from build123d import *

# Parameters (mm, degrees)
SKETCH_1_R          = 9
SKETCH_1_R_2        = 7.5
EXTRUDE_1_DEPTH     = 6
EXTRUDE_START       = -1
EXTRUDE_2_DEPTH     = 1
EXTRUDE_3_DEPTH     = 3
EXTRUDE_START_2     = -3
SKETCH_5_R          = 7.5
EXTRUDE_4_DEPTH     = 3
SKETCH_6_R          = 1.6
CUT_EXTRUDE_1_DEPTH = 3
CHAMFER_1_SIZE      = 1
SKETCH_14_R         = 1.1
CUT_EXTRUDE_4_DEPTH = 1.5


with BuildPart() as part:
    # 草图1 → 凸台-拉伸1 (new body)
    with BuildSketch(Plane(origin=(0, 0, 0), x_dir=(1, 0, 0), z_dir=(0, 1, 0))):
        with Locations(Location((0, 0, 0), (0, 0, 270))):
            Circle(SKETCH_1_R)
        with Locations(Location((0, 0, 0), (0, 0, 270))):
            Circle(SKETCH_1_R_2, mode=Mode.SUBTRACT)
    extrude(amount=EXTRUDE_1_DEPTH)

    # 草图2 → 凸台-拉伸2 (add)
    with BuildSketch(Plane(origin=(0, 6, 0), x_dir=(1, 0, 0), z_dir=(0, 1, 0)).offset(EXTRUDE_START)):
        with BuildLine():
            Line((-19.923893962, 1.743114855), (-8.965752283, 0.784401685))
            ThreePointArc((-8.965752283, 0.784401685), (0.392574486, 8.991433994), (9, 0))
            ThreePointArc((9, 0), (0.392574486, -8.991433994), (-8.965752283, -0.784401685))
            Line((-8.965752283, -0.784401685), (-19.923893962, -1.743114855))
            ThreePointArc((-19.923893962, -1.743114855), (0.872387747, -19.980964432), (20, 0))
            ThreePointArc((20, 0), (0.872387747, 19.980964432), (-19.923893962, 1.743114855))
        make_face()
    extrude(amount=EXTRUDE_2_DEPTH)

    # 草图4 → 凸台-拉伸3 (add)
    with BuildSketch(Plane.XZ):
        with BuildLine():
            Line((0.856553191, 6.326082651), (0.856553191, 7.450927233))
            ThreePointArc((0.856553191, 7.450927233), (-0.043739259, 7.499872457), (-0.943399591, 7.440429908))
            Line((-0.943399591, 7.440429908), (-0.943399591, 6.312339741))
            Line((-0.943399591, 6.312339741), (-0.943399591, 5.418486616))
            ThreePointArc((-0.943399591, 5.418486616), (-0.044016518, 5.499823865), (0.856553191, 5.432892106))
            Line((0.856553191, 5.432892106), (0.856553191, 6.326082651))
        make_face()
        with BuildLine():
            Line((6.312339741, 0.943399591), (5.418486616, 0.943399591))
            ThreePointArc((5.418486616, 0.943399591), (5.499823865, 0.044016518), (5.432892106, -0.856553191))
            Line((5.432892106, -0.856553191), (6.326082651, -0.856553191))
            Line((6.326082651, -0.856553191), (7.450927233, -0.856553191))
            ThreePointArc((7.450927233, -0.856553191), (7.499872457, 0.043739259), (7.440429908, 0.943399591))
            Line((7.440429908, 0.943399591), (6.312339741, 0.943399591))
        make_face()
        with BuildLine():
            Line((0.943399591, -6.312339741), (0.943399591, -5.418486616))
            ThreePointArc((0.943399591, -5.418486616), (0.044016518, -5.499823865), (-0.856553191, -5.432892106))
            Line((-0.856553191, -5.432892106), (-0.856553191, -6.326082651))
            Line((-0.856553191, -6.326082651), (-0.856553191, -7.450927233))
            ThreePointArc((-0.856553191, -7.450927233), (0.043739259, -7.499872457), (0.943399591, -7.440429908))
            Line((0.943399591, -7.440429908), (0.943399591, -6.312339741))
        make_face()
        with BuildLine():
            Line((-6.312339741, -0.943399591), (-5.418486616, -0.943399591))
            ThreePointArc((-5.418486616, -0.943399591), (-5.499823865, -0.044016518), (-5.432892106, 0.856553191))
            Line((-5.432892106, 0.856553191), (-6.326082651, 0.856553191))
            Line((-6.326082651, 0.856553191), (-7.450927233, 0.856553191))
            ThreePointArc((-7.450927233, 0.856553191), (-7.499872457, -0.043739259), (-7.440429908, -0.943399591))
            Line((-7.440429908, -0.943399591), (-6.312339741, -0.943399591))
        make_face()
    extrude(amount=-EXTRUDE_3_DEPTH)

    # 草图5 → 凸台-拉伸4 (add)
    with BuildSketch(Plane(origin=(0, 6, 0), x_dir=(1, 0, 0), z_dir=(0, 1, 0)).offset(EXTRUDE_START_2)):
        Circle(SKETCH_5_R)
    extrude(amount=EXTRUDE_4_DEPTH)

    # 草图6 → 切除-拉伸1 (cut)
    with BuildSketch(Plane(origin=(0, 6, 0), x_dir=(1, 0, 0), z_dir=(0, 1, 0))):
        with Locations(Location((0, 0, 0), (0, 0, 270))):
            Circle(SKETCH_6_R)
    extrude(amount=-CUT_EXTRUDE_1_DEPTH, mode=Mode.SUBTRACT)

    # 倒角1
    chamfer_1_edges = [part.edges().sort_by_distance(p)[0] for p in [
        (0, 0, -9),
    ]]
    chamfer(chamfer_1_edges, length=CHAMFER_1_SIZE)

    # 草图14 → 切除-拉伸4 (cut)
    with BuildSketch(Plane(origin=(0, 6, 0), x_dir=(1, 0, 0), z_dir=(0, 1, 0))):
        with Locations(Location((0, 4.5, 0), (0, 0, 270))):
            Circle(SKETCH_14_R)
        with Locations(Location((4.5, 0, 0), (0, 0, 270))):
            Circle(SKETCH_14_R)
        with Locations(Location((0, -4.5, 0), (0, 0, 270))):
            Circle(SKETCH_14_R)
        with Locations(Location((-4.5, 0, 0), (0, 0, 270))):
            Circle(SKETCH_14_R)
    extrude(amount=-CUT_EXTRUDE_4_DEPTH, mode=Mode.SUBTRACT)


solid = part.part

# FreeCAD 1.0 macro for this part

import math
import FreeCAD as App
import Part
import Sketcher
from FreeCAD import Vector
Q = App.Units.Quantity


def edges_at(feature, points):
    """Names of the edges that pass closest to the given points."""
    edges = feature.Shape.Edges
    near = lambda p: min(range(len(edges)), key=lambda i: edges[i].distToShape(Part.Vertex(*p))[0])
    return sorted({f"Edge{near(p) + 1}" for p in points})

doc = App.newDocument("Part")
body = doc.addObject("PartDesign::Body", "Body")

# Sketch on XZ plane
sketch1 = doc.addObject("Sketcher::SketchObject", "Sketch")
body.addObject(sketch1)
sketch1.AttachmentSupport = (doc.XZ_Plane, [""])
sketch1.MapMode = "FlatFace"
sketch1.addGeometry(Part.Circle(Vector(0, 0, 0), Vector(0, 0, 1), 9), False)
sketch1.addGeometry(Part.Circle(Vector(0, 0, 0), Vector(0, 0, 1), 7.5), False)
sketch1.addConstraint(Sketcher.Constraint("Coincident", 0, 3, -1, 1))
sketch1.addConstraint(Sketcher.Constraint("Coincident", 1, 3, -1, 1))
sketch1.addConstraint(Sketcher.Constraint("Diameter", 0, 18.0))
sketch1.addConstraint(Sketcher.Constraint("Diameter", 1, 15.0))
pad1 = doc.addObject("PartDesign::Pad", "Pad")
body.addObject(pad1)
pad1.Profile = sketch1
pad1.Length = 6
pad1.Reversed = True

# Sketch on XZ plane
sketch2 = doc.addObject("Sketcher::SketchObject", "Sketch001")
body.addObject(sketch2)
sketch2.AttachmentSupport = (doc.XZ_Plane, [""])
sketch2.MapMode = "FlatFace"
sketch2.AttachmentOffset = App.Placement(Vector(0, 0, -5), App.Rotation())
sketch2.addGeometry(Part.LineSegment(Vector(-19.923894, -1.743115, 0), Vector(-8.965752, -0.784402, 0)), False)
sketch2.addGeometry(Part.ArcOfCircle(Part.Circle(Vector(0, 0, 0), Vector(0, 0, 1), 9), math.radians(-175), math.radians(0)), False)
sketch2.addGeometry(Part.ArcOfCircle(Part.Circle(Vector(0, 0, 0), Vector(0, 0, 1), 9), math.radians(0), math.radians(175)), False)
sketch2.addGeometry(Part.LineSegment(Vector(-8.965752, 0.784402, 0), Vector(-19.923894, 1.743115, 0)), False)
sketch2.addGeometry(Part.ArcOfCircle(Part.Circle(Vector(0, 0, 0), Vector(0, 0, 1), 20), math.radians(0), math.radians(175)), False)
sketch2.addGeometry(Part.ArcOfCircle(Part.Circle(Vector(0, 0, 0), Vector(0, 0, 1), 20), math.radians(-175), math.radians(0)), False)
sketch2.addConstraint(Sketcher.Constraint("Coincident", 0, 2, 1, 1))
sketch2.addConstraint(Sketcher.Constraint("Tangent", 1, 2, 2, 1))
sketch2.addConstraint(Sketcher.Constraint("Coincident", 2, 2, 3, 1))
sketch2.addConstraint(Sketcher.Constraint("Coincident", 3, 2, 4, 2))
sketch2.addConstraint(Sketcher.Constraint("Tangent", 4, 1, 5, 2))
sketch2.addConstraint(Sketcher.Constraint("Coincident", 5, 1, 0, 1))
sketch2.addConstraint(Sketcher.Constraint("Coincident", 1, 3, -1, 1))
sketch2.addConstraint(Sketcher.Constraint("Coincident", 4, 3, -1, 1))
sketch2.addConstraint(Sketcher.Constraint("Equal", 1, 2))
sketch2.addConstraint(Sketcher.Constraint("Equal", 4, 5))
sketch2.addConstraint(Sketcher.Constraint("PointOnObject", 1, 2, -1))
sketch2.addConstraint(Sketcher.Constraint("PointOnObject", 4, 1, -1))
sketch2.addConstraint(Sketcher.Constraint("Vertical", 0, 2, 2, 2))
sketch2.addConstraint(Sketcher.Constraint("Vertical", 3, 2, 5, 1))
sketch2.addConstraint(Sketcher.Constraint("Radius", 1, 9.0))
sketch2.addConstraint(Sketcher.Constraint("Radius", 4, 20.0))
sketch2.addConstraint(Sketcher.Constraint("Angle", 0, Q("5 deg")))
sketch2.addConstraint(Sketcher.Constraint("DistanceY", 0, 2, -1, 1, 0.784402))
pad2 = doc.addObject("PartDesign::Pad", "Pad001")
body.addObject(pad2)
pad2.Profile = sketch2
pad2.Length = 1
pad2.Reversed = True

# Sketch on XZ plane
sketch3 = doc.addObject("Sketcher::SketchObject", "Sketch002")
body.addObject(sketch3)
sketch3.AttachmentSupport = (doc.XZ_Plane, [""])
sketch3.MapMode = "FlatFace"
sketch3.addGeometry(Part.ArcOfCircle(Part.Circle(Vector(0, 0, 0), Vector(0, 0, 1), 7.5), math.radians(83.442107), math.radians(97.226184)), False)
sketch3.addGeometry(Part.LineSegment(Vector(-0.9434, 7.44043, 0), Vector(-0.9434, 5.418487, 0)), False)
sketch3.addGeometry(Part.ArcOfCircle(Part.Circle(Vector(0, 0, 0), Vector(0, 0, 1), 5.5), math.radians(81.040461), math.radians(99.876625)), False)
sketch3.addGeometry(Part.LineSegment(Vector(0.856553, 5.432892, 0), Vector(0.856553, 7.450927, 0)), False)
sketch3.addGeometry(Part.ArcOfCircle(Part.Circle(Vector(0, 0, 0), Vector(0, 0, 1), 5.5), math.radians(-8.959539), math.radians(9.876625)), False)
sketch3.addGeometry(Part.LineSegment(Vector(5.432892, -0.856553, 0), Vector(7.450927, -0.856553, 0)), False)
sketch3.addGeometry(Part.ArcOfCircle(Part.Circle(Vector(0, 0, 0), Vector(0, 0, 1), 7.5), math.radians(-6.557893), math.radians(7.226184)), False)
sketch3.addGeometry(Part.LineSegment(Vector(7.44043, 0.9434, 0), Vector(5.418487, 0.9434, 0)), False)
sketch3.addGeometry(Part.ArcOfCircle(Part.Circle(Vector(0, 0, 0), Vector(0, 0, 1), 5.5), math.radians(-98.959539), math.radians(-80.123375)), False)
sketch3.addGeometry(Part.LineSegment(Vector(-0.856553, -5.432892, 0), Vector(-0.856553, -7.450927, 0)), False)
sketch3.addGeometry(Part.ArcOfCircle(Part.Circle(Vector(0, 0, 0), Vector(0, 0, 1), 7.5), math.radians(-96.557893), math.radians(-82.773816)), False)
sketch3.addGeometry(Part.LineSegment(Vector(0.9434, -7.44043, 0), Vector(0.9434, -5.418487, 0)), False)
sketch3.addGeometry(Part.ArcOfCircle(Part.Circle(Vector(0, 0, 0), Vector(0, 0, 1), 5.5), math.radians(171.040461), math.radians(189.876625)), False)
sketch3.addGeometry(Part.LineSegment(Vector(-5.432892, 0.856553, 0), Vector(-7.450927, 0.856553, 0)), False)
sketch3.addGeometry(Part.ArcOfCircle(Part.Circle(Vector(0, 0, 0), Vector(0, 0, 1), 7.5), math.radians(173.442107), math.radians(187.226184)), False)
sketch3.addGeometry(Part.LineSegment(Vector(-7.44043, -0.9434, 0), Vector(-5.418487, -0.9434, 0)), False)
sketch3.addConstraint(Sketcher.Constraint("Coincident", 0, 2, 1, 1))
sketch3.addConstraint(Sketcher.Constraint("Coincident", 1, 2, 2, 2))
sketch3.addConstraint(Sketcher.Constraint("Coincident", 2, 1, 3, 1))
sketch3.addConstraint(Sketcher.Constraint("Coincident", 3, 2, 0, 1))
sketch3.addConstraint(Sketcher.Constraint("Coincident", 4, 1, 5, 1))
sketch3.addConstraint(Sketcher.Constraint("Coincident", 5, 2, 6, 1))
sketch3.addConstraint(Sketcher.Constraint("Coincident", 6, 2, 7, 1))
sketch3.addConstraint(Sketcher.Constraint("Coincident", 7, 2, 4, 2))
sketch3.addConstraint(Sketcher.Constraint("Coincident", 8, 1, 9, 1))
sketch3.addConstraint(Sketcher.Constraint("Coincident", 9, 2, 10, 1))
sketch3.addConstraint(Sketcher.Constraint("Coincident", 10, 2, 11, 1))
sketch3.addConstraint(Sketcher.Constraint("Coincident", 11, 2, 8, 2))
sketch3.addConstraint(Sketcher.Constraint("Coincident", 12, 1, 13, 1))
sketch3.addConstraint(Sketcher.Constraint("Coincident", 13, 2, 14, 1))
sketch3.addConstraint(Sketcher.Constraint("Coincident", 14, 2, 15, 1))
sketch3.addConstraint(Sketcher.Constraint("Coincident", 15, 2, 12, 2))
sketch3.addConstraint(Sketcher.Constraint("Vertical", 1))
sketch3.addConstraint(Sketcher.Constraint("Vertical", 3))
sketch3.addConstraint(Sketcher.Constraint("Horizontal", 5))
sketch3.addConstraint(Sketcher.Constraint("Horizontal", 7))
sketch3.addConstraint(Sketcher.Constraint("Vertical", 9))
sketch3.addConstraint(Sketcher.Constraint("Vertical", 11))
sketch3.addConstraint(Sketcher.Constraint("Horizontal", 13))
sketch3.addConstraint(Sketcher.Constraint("Horizontal", 15))
sketch3.addConstraint(Sketcher.Constraint("Coincident", 0, 3, -1, 1))
sketch3.addConstraint(Sketcher.Constraint("Coincident", 2, 3, -1, 1))
sketch3.addConstraint(Sketcher.Constraint("Coincident", 4, 3, -1, 1))
sketch3.addConstraint(Sketcher.Constraint("Coincident", 6, 3, -1, 1))
sketch3.addConstraint(Sketcher.Constraint("Coincident", 8, 3, -1, 1))
sketch3.addConstraint(Sketcher.Constraint("Coincident", 10, 3, -1, 1))
sketch3.addConstraint(Sketcher.Constraint("Coincident", 12, 3, -1, 1))
sketch3.addConstraint(Sketcher.Constraint("Coincident", 14, 3, -1, 1))
sketch3.addConstraint(Sketcher.Constraint("Equal", 2, 4))
sketch3.addConstraint(Sketcher.Constraint("Equal", 0, 6))
sketch3.addConstraint(Sketcher.Constraint("Equal", 4, 8))
sketch3.addConstraint(Sketcher.Constraint("Equal", 6, 10))
sketch3.addConstraint(Sketcher.Constraint("Equal", 8, 12))
sketch3.addConstraint(Sketcher.Constraint("Equal", 10, 14))
sketch3.addConstraint(Sketcher.Constraint("Equal", 5, 13))
sketch3.addConstraint(Sketcher.Constraint("Equal", 7, 15))
sketch3.addConstraint(Sketcher.Constraint("Equal", 15, 1))
sketch3.addConstraint(Sketcher.Constraint("Equal", 13, 3))
sketch3.addConstraint(Sketcher.Constraint("Equal", 3, 9))
sketch3.addConstraint(Sketcher.Constraint("Equal", 1, 11))
sketch3.addConstraint(Sketcher.Constraint("Radius", 0, 7.5))
sketch3.addConstraint(Sketcher.Constraint("Radius", 2, 5.5))
sketch3.addConstraint(Sketcher.Constraint("DistanceX", 0, 2, -1, 1, 0.9434))
sketch3.addConstraint(Sketcher.Constraint("DistanceX", 5, 1, 5, 2, 2.018035))
pad3 = doc.addObject("PartDesign::Pad", "Pad002")
body.addObject(pad3)
pad3.Profile = sketch3
pad3.Length = 3
pad3.Reversed = True

# Sketch on XZ plane
sketch4 = doc.addObject("Sketcher::SketchObject", "Sketch003")
body.addObject(sketch4)
sketch4.AttachmentSupport = (doc.XZ_Plane, [""])
sketch4.MapMode = "FlatFace"
sketch4.AttachmentOffset = App.Placement(Vector(0, 0, -3), App.Rotation())
sketch4.addGeometry(Part.Circle(Vector(0, 0, 0), Vector(0, 0, 1), 7.5), False)
sketch4.addConstraint(Sketcher.Constraint("Coincident", 0, 3, -1, 1))
sketch4.addConstraint(Sketcher.Constraint("Diameter", 0, 15.0))
pad4 = doc.addObject("PartDesign::Pad", "Pad003")
body.addObject(pad4)
pad4.Profile = sketch4
pad4.Length = 3
pad4.Reversed = True

# Sketch on XZ plane
sketch5 = doc.addObject("Sketcher::SketchObject", "Sketch004")
body.addObject(sketch5)
sketch5.AttachmentSupport = (doc.XZ_Plane, [""])
sketch5.MapMode = "FlatFace"
sketch5.AttachmentOffset = App.Placement(Vector(0, 0, -6), App.Rotation())
sketch5.addGeometry(Part.Circle(Vector(0, 0, 0), Vector(0, 0, 1), 1.6), False)
sketch5.addConstraint(Sketcher.Constraint("Coincident", 0, 3, -1, 1))
sketch5.addConstraint(Sketcher.Constraint("Diameter", 0, 3.2))
pocket1 = doc.addObject("PartDesign::Pocket", "Pocket")
body.addObject(pocket1)
pocket1.Profile = sketch5
pocket1.Length = 3
pocket1.Reversed = True
doc.recompute()

chamfer = doc.addObject("PartDesign::Chamfer", "Chamfer")
body.addObject(chamfer)
chamfer.Base = (pocket1, edges_at(pocket1, [(0, 0, -9)]))
chamfer.Size = 1

# Sketch on XZ plane
sketch6 = doc.addObject("Sketcher::SketchObject", "Sketch005")
body.addObject(sketch6)
sketch6.AttachmentSupport = (doc.XZ_Plane, [""])
sketch6.MapMode = "FlatFace"
sketch6.AttachmentOffset = App.Placement(Vector(0, 0, -6), App.Rotation())
sketch6.addGeometry(Part.Circle(Vector(0, -4.5, 0), Vector(0, 0, 1), 1.1), False)
sketch6.addGeometry(Part.Circle(Vector(4.5, 0, 0), Vector(0, 0, 1), 1.1), False)
sketch6.addGeometry(Part.Circle(Vector(0, 4.5, 0), Vector(0, 0, 1), 1.1), False)
sketch6.addGeometry(Part.Circle(Vector(-4.5, 0, 0), Vector(0, 0, 1), 1.1), False)
sketch6.addConstraint(Sketcher.Constraint("Equal", 0, 1))
sketch6.addConstraint(Sketcher.Constraint("Equal", 1, 2))
sketch6.addConstraint(Sketcher.Constraint("Equal", 2, 3))
sketch6.addConstraint(Sketcher.Constraint("Symmetric", 0, 3, 2, 3, -1, 1))
sketch6.addConstraint(Sketcher.Constraint("Symmetric", 1, 3, 3, 3, -1, 1))
sketch6.addConstraint(Sketcher.Constraint("PointOnObject", 0, 3, -2))
sketch6.addConstraint(Sketcher.Constraint("PointOnObject", 1, 3, -1))
sketch6.addConstraint(Sketcher.Constraint("Diameter", 0, 2.2))
sketch6.addConstraint(Sketcher.Constraint("DistanceY", 0, 3, 2, 3, 9.0))
sketch6.addConstraint(Sketcher.Constraint("DistanceX", 3, 3, 1, 3, 9.0))
pocket2 = doc.addObject("PartDesign::Pocket", "Pocket001")
body.addObject(pocket2)
pocket2.Profile = sketch6
pocket2.Length = 1.5
pocket2.Reversed = True

doc.recompute()
